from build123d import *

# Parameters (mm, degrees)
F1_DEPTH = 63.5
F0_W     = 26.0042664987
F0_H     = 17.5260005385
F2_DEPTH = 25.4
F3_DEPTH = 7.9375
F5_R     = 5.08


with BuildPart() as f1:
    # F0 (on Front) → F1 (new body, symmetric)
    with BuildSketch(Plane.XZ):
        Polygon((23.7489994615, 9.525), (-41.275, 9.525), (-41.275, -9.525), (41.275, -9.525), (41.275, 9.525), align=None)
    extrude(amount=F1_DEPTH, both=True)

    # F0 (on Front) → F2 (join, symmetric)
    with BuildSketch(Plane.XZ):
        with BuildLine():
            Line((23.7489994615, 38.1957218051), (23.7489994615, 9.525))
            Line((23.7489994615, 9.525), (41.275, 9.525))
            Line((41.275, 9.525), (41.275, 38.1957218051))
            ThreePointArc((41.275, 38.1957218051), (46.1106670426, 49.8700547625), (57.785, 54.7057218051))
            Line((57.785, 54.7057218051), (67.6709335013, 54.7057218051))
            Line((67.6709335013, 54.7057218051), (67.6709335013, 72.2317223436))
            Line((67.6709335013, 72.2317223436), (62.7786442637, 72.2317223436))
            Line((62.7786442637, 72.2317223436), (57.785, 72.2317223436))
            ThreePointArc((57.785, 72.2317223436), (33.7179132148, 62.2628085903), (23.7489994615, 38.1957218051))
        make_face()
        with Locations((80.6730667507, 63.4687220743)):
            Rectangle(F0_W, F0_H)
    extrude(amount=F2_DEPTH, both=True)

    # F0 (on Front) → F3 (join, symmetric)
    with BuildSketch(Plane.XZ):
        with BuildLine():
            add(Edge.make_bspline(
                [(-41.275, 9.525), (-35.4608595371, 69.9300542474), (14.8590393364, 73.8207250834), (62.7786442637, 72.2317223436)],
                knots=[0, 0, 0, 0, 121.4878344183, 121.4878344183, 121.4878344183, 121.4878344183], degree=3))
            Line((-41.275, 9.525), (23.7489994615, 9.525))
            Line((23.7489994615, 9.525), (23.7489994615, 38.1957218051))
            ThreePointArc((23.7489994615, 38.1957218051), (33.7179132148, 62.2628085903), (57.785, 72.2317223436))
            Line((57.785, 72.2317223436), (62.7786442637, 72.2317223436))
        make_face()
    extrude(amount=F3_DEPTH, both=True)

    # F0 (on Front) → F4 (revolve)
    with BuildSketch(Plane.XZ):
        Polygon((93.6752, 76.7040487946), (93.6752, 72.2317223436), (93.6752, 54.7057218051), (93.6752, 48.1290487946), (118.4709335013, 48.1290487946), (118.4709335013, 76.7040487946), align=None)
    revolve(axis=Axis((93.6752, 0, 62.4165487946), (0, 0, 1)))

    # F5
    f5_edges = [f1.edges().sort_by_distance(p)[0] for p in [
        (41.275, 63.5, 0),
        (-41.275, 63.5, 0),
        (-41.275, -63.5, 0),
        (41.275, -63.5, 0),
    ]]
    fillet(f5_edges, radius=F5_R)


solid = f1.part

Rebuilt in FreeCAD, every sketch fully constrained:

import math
import FreeCAD as App
import Part
import Sketcher

V = App.Vector
Q = App.Units.Quantity


def edges_at(feature, points):
    """Names of the edges that pass closest to the given points."""
    edges = feature.Shape.Edges
    near = lambda p: min(range(len(edges)), key=lambda i: edges[i].distToShape(Part.Vertex(*p))[0])
    return sorted({f"Edge{near(p) + 1}" for p in points})

doc = App.newDocument("Part")
params = doc.addObject("Spreadsheet::Sheet", "Params")
for row, (alias, value) in enumerate([
    ("sketch1_width", "3.25 in"),
    ("sketch1_height", "0.75 in"),
    ("pad1_length", "5 in"),
    ("sketch2_radius", "0.65 in"),
    ("sketch2_radius2", "1.34 in"),
    ("pad2_length", "2 in"),
    ("sketch3_radius", "1.34 in"),
    ("sketch3_width", "2.56 in"),
    ("pad3_length", "0.625 in"),
    ("sketch4_height", "1.125 in"),
    ("revolution_angle", "360 deg"),
    ("fillet_radius", "0.2 in"),
], start=1):
    params.set(f"A{row}", alias)
    params.set(f"B{row}", "=" + value)
    params.setAlias(f"B{row}", alias)

body = doc.addObject("PartDesign::Body", "Body")

# Sketch on XZ plane
sketch1 = doc.addObject("Sketcher::SketchObject", "Sketch")
body.addObject(sketch1)
sketch1.AttachmentSupport = (doc.XZ_Plane, [""])
sketch1.MapMode = "FlatFace"
sketch1.addGeometry(Part.LineSegment(V(-41, 10, 0), V(-41, -10, 0)), False)
sketch1.addGeometry(Part.LineSegment(V(-41, -10, 0), V(41, -10, 0)), False)
sketch1.addGeometry(Part.LineSegment(V(41, -10, 0), V(41, 10, 0)), False)
sketch1.addGeometry(Part.LineSegment(V(41, 10, 0), V(-41, 10, 0)), False)
sketch1.addConstraint(Sketcher.Constraint("Coincident", 0, 2, 1, 1))
sketch1.addConstraint(Sketcher.Constraint("Coincident", 1, 2, 2, 1))
sketch1.addConstraint(Sketcher.Constraint("Coincident", 2, 2, 3, 1))
sketch1.addConstraint(Sketcher.Constraint("Coincident", 3, 2, 0, 1))
sketch1.addConstraint(Sketcher.Constraint("Vertical", 0))
sketch1.addConstraint(Sketcher.Constraint("Horizontal", 1))
sketch1.addConstraint(Sketcher.Constraint("Vertical", 2))
sketch1.addConstraint(Sketcher.Constraint("Horizontal", 3))
sketch1.addConstraint(Sketcher.Constraint("Symmetric", 0, 2, 2, 2, -1, 1))
sketch1.addConstraint(Sketcher.Constraint("DistanceX", 1, 1, 1, 2, Q("3.25 in")))
sketch1.addConstraint(Sketcher.Constraint("DistanceY", 0, 2, 0, 1, Q("0.75 in")))
sketch1.setExpression("Constraints[9]", "Params.sketch1_width")
sketch1.setExpression("Constraints[10]", "Params.sketch1_height")
pad1 = doc.addObject("PartDesign::Pad", "Pad")
body.addObject(pad1)
pad1.Profile = sketch1
pad1.setExpression("Length", "Params.pad1_length")
pad1.Midplane = True

# Sketch on XZ plane
sketch2 = doc.addObject("Sketcher::SketchObject", "Sketch001")
body.addObject(sketch2)
sketch2.AttachmentSupport = (doc.XZ_Plane, [""])
sketch2.MapMode = "FlatFace"
sketch2.addGeometry(Part.LineSegment(V(24, 38, 0), V(24, 10, 0)), False)
sketch2.addGeometry(Part.LineSegment(V(24, 10, 0), V(41, 10, 0)), False)
sketch2.addGeometry(Part.LineSegment(V(41, 10, 0), V(41, 38, 0)), False)
sketch2.addGeometry(Part.ArcOfCircle(Part.Circle(V(58, 38, 0), V(0, 0, 1), 17), math.radians(90), math.radians(180)), False)
sketch2.addGeometry(Part.LineSegment(V(58, 55, 0), V(68, 55, 0)), False)
sketch2.addGeometry(Part.LineSegment(V(68, 55, 0), V(94, 55, 0)), False)
sketch2.addGeometry(Part.LineSegment(V(94, 55, 0), V(94, 72, 0)), False)
sketch2.addGeometry(Part.LineSegment(V(94, 72, 0), V(68, 72, 0)), False)
sketch2.addGeometry(Part.LineSegment(V(68, 72, 0), V(58, 72, 0)), False)
sketch2.addGeometry(Part.ArcOfCircle(Part.Circle(V(58, 38, 0), V(0, 0, 1), 34), math.radians(90), math.radians(180)), False)
sketch2.addConstraint(Sketcher.Constraint("Coincident", 0, 2, 1, 1))
sketch2.addConstraint(Sketcher.Constraint("Coincident", 1, 2, 2, 1))
sketch2.addConstraint(Sketcher.Constraint("Tangent", 2, 2, 3, 2))
sketch2.addConstraint(Sketcher.Constraint("Tangent", 3, 1, 4, 1))
sketch2.addConstraint(Sketcher.Constraint("Coincident", 4, 2, 5, 1))
sketch2.addConstraint(Sketcher.Constraint("Coincident", 5, 2, 6, 1))
sketch2.addConstraint(Sketcher.Constraint("Coincident", 6, 2, 7, 1))
sketch2.addConstraint(Sketcher.Constraint("Coincident", 7, 2, 8, 1))
sketch2.addConstraint(Sketcher.Constraint("Tangent", 8, 2, 9, 1))
sketch2.addConstraint(Sketcher.Constraint("Tangent", 9, 2, 0, 1))
sketch2.addConstraint(Sketcher.Constraint("Vertical", 0))
sketch2.addConstraint(Sketcher.Constraint("Horizontal", 1))
sketch2.addConstraint(Sketcher.Constraint("Vertical", 2))
sketch2.addConstraint(Sketcher.Constraint("Horizontal", 4))
sketch2.addConstraint(Sketcher.Constraint("Horizontal", 5))
sketch2.addConstraint(Sketcher.Constraint("Vertical", 6))
sketch2.addConstraint(Sketcher.Constraint("Horizontal", 7))
sketch2.addConstraint(Sketcher.Constraint("Horizontal", 8))
sketch2.addConstraint(Sketcher.Constraint("Coincident", 9, 3, 3, 3))
sketch2.addConstraint(Sketcher.Constraint("Vertical", 4, 2, 7, 2))
sketch2.addConstraint(Sketcher.Constraint("Radius", 3, Q("0.65 in")))
sketch2.addConstraint(Sketcher.Constraint("Radius", 9, Q("1.34 in")))
sketch2.addConstraint(Sketcher.Constraint("DistanceX", -1, 1, 3, 3, Q("2.275 in")))
sketch2.addConstraint(Sketcher.Constraint("DistanceY", -1, 1, 0, 2, Q("0.375 in")))
sketch2.addConstraint(Sketcher.Constraint("DistanceX", -1, 1, 5, 2, Q("3.688 in")))
sketch2.addConstraint(Sketcher.Constraint("DistanceY", 0, 2, 0, 1, Q("28.670722 mm")))
sketch2.addConstraint(Sketcher.Constraint("DistanceX", 4, 1, 4, 2, Q("9.885934 mm")))
sketch2.setExpression("Constraints[20]", "Params.sketch2_radius")
sketch2.setExpression("Constraints[21]", "Params.sketch2_radius2")
pad2 = doc.addObject("PartDesign::Pad", "Pad001")
body.addObject(pad2)
pad2.Profile = sketch2
pad2.setExpression("Length", "Params.pad2_length")
pad2.Midplane = True

# Sketch on XZ plane
sketch3 = doc.addObject("Sketcher::SketchObject", "Sketch002")
body.addObject(sketch3)
sketch3.AttachmentSupport = (doc.XZ_Plane, [""])
sketch3.MapMode = "FlatFace"
sketch3.addGeometry(Part.BSplineCurve([V(-41.275, 9.525, 0), V(-35.46086, 69.930054, 0), V(14.859039, 73.820725, 0), V(62.778644, 72.231722, 0)], [4, 4], [0, 121.487834418], False, 3, [1, 1, 1, 1], False), False)
sketch3.addGeometry(Part.LineSegment(V(-41.275, 9.525, 0), V(23.748999, 9.525, 0)), False)
sketch3.addGeometry(Part.LineSegment(V(23.748999, 9.525, 0), V(23.748999, 38.195722, 0)), False)
sketch3.addGeometry(Part.ArcOfCircle(Part.Circle(V(57.785, 38.195722, 0), V(0, 0, 1), 34.036001), math.radians(90), math.radians(180)), False)
sketch3.addGeometry(Part.LineSegment(V(57.785, 72.231722, 0), V(62.778644, 72.231722, 0)), False)
sketch3.addConstraint(Sketcher.Constraint("Block", 0))
sketch3.addConstraint(Sketcher.Constraint("Coincident", 0, 1, 1, 1))
sketch3.addConstraint(Sketcher.Constraint("Coincident", 1, 2, 2, 1))
sketch3.addConstraint(Sketcher.Constraint("Tangent", 2, 2, 3, 2))
sketch3.addConstraint(Sketcher.Constraint("Tangent", 3, 1, 4, 1))
sketch3.addConstraint(Sketcher.Constraint("Coincident", 4, 2, 0, 2))
sketch3.addConstraint(Sketcher.Constraint("Horizontal", 1))
sketch3.addConstraint(Sketcher.Constraint("Vertical", 2))
sketch3.addConstraint(Sketcher.Constraint("Horizontal", 4))
sketch3.addConstraint(Sketcher.Constraint("Radius", 3, Q("1.34 in")))
sketch3.addConstraint(Sketcher.Constraint("DistanceX", 1, 1, 1, 2, Q("2.56 in")))
sketch3.setExpression("Constraints[9]", "Params.sketch3_radius")
sketch3.setExpression("Constraints[10]", "Params.sketch3_width")
pad3 = doc.addObject("PartDesign::Pad", "Pad002")
body.addObject(pad3)
pad3.Profile = sketch3
pad3.setExpression("Length", "Params.pad3_length")
pad3.Midplane = True

# Sketch on XZ plane
sketch4 = doc.addObject("Sketcher::SketchObject", "Sketch003")
body.addObject(sketch4)
sketch4.AttachmentSupport = (doc.XZ_Plane, [""])
sketch4.MapMode = "FlatFace"
sketch4.addGeometry(Part.LineSegment(V(94, 77, 0), V(94, 48, 0)), False)
sketch4.addGeometry(Part.LineSegment(V(94, 48, 0), V(118, 48, 0)), False)
sketch4.addGeometry(Part.LineSegment(V(118, 48, 0), V(118, 77, 0)), False)
sketch4.addGeometry(Part.LineSegment(V(118, 77, 0), V(94, 77, 0)), False)
sketch4.addGeometry(Part.LineSegment(V(94, 48, 0), V(94, 77, 0)), True)  # axis
sketch4.addConstraint(Sketcher.Constraint("Coincident", 0, 2, 1, 1))
sketch4.addConstraint(Sketcher.Constraint("Coincident", 1, 2, 2, 1))
sketch4.addConstraint(Sketcher.Constraint("Coincident", 2, 2, 3, 1))
sketch4.addConstraint(Sketcher.Constraint("Coincident", 3, 2, 0, 1))
sketch4.addConstraint(Sketcher.Constraint("Vertical", 0))
sketch4.addConstraint(Sketcher.Constraint("Horizontal", 1))
sketch4.addConstraint(Sketcher.Constraint("Vertical", 2))
sketch4.addConstraint(Sketcher.Constraint("Horizontal", 3))
sketch4.addConstraint(Sketcher.Constraint("Vertical", 4))
sketch4.addConstraint(Sketcher.Constraint("Coincident", 4, 1, 0, 2))
sketch4.addConstraint(Sketcher.Constraint("Horizontal", 2, 2, 4, 2))
sketch4.addConstraint(Sketcher.Constraint("DistanceY", 0, 2, 0, 1, Q("1.125 in")))
sketch4.addConstraint(Sketcher.Constraint("DistanceX", -1, 1, 0, 2, Q("3.688 in")))
sketch4.addConstraint(Sketcher.Constraint("DistanceX", 1, 1, 1, 2, Q("24.795734 mm")))
sketch4.addConstraint(Sketcher.Constraint("DistanceY", -1, 1, 0, 2, Q("48.129049 mm")))
sketch4.setExpression("Constraints[11]", "Params.sketch4_height")
revolution = doc.addObject("PartDesign::Revolution", "Revolution")
body.addObject(revolution)
revolution.Profile = sketch4
revolution.ReferenceAxis = (sketch4, ["Axis0"])
revolution.setExpression("Angle", "Params.revolution_angle")
doc.recompute()

fillet = doc.addObject("PartDesign::Fillet", "Fillet")
body.addObject(fillet)
fillet.Base = (revolution, edges_at(revolution, [
    (41.275, 63.5, 0),
    (-41.275, 63.5, 0),
    (-41.275, -63.5, 0),
    (41.275, -63.5, 0),
]))
fillet.setExpression("Radius", "Params.fillet_radius")

doc.recompute()
